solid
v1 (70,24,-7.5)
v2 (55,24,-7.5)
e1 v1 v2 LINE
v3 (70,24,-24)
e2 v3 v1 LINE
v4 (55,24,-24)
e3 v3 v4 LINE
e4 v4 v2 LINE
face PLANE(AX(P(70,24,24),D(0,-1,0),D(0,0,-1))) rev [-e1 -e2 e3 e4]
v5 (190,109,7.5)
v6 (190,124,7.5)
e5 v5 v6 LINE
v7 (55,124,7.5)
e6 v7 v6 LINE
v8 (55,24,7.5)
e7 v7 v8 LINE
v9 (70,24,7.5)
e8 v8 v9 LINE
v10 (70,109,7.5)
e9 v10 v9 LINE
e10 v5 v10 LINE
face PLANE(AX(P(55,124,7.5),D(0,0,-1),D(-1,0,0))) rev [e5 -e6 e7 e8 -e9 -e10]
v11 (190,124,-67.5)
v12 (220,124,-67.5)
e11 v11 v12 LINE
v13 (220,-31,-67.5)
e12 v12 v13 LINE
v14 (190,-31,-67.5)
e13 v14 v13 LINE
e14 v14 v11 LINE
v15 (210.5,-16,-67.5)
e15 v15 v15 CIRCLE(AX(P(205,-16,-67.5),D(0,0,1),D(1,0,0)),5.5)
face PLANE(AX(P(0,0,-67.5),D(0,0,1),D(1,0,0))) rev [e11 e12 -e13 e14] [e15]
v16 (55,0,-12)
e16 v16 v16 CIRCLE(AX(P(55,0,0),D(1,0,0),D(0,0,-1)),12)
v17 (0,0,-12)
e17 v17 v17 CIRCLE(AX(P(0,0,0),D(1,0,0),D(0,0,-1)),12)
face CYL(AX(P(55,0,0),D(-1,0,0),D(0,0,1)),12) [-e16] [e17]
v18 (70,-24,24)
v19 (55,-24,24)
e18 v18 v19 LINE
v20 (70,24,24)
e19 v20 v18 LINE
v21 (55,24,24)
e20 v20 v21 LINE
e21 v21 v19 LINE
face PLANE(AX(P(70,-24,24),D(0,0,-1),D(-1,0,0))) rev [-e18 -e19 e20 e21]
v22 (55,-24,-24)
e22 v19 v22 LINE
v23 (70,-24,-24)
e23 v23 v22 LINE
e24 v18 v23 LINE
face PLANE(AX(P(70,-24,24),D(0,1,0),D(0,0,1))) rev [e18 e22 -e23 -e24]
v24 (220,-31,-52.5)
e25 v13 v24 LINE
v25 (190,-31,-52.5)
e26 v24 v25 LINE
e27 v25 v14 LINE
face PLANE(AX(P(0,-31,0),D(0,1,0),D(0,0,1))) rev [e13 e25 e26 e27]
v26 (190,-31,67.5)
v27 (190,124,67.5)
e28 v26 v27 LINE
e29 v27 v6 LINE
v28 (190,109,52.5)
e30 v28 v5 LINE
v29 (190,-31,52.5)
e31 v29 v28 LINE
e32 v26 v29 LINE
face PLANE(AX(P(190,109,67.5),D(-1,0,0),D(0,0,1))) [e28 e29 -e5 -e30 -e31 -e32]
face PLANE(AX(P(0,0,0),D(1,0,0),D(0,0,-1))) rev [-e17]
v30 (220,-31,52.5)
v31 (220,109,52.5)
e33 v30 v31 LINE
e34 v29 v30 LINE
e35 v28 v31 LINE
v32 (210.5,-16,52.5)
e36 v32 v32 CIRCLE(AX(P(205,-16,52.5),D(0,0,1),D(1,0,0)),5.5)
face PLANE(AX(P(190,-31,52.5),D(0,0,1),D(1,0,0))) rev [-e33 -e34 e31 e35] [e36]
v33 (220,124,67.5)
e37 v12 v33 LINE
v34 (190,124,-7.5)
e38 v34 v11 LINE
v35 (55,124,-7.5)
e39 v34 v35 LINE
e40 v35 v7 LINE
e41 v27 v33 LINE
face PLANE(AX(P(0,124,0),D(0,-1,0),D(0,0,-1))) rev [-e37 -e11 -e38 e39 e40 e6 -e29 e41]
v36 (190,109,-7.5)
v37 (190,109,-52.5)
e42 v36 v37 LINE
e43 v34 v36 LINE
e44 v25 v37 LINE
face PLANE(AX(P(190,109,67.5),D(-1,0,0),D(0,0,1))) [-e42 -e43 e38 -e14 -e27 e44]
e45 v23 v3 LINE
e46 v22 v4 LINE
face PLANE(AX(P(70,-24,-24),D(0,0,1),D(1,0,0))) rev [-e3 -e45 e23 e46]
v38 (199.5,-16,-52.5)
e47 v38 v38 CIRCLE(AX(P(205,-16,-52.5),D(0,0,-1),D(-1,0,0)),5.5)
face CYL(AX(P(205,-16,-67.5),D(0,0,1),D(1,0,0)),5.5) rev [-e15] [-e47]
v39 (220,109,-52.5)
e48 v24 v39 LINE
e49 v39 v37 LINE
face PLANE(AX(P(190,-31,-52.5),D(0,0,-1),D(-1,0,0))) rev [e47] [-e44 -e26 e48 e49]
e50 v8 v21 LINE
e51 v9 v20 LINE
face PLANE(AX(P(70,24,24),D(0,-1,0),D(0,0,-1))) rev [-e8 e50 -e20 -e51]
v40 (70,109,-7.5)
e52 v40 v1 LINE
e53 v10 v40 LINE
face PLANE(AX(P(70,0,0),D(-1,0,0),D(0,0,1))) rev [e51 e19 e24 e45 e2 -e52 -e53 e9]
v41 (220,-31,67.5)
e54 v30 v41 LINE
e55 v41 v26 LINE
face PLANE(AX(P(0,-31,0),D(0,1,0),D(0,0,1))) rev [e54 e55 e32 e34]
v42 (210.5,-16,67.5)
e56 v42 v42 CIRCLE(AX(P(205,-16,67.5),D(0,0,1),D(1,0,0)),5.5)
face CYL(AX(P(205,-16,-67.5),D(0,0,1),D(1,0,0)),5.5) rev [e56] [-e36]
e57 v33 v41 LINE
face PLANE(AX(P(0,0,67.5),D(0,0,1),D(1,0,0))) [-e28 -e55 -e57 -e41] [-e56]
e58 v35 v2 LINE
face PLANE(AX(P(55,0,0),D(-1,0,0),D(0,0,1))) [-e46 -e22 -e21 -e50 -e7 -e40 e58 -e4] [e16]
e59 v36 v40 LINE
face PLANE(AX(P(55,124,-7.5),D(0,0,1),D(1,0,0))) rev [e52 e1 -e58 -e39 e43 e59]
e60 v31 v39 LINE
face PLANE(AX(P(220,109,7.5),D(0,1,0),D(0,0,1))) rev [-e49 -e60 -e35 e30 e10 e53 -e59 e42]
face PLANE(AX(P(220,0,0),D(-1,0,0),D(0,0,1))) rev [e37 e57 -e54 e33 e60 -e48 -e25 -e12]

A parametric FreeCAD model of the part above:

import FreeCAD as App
import Part
import Sketcher
from FreeCAD import Vector


def add_polygon(sketch, points):
    """Adds a closed chain of lines whose ends are joined by coincident constraints."""
    first, n = sketch.GeometryCount, len(points)
    for a, b in zip(points, points[1:] + points[:1]):
        sketch.addGeometry(Part.LineSegment(App.Vector(*a, 0), App.Vector(*b, 0)), False)
    for i in range(n):
        sketch.addConstraint(Sketcher.Constraint("Coincident", first + i, 2, first + (i + 1) % n, 1))

doc = App.newDocument("Part")
body = doc.addObject("PartDesign::Body", "Body")

sketch1 = body.newObject("Sketcher::SketchObject", "Sketch")
sketch1.AttachmentSupport = (doc.getObject("YZ_Plane"), [""])
sketch1.MapMode = "FlatFace"
sketch1.addGeometry(Part.Circle(Vector(0, 0, 0), Vector(0, 0, 1), 12), False)
sketch1.addConstraint([
    Sketcher.Constraint("Coincident", 0, 3, -1, 1),
    Sketcher.Constraint("Diameter", 0, 24.0),
])
pad1 = body.newObject("PartDesign::Pad", "Pad")
pad1.Profile = sketch1
pad1.Length = 55

sketch2 = body.newObject("Sketcher::SketchObject", "Sketch001")
sketch2.AttachmentSupport = (doc.getObject("YZ_Plane"), [""])
sketch2.MapMode = "FlatFace"
sketch2.AttachmentOffset = App.Placement(Vector(0, 0, 55), App.Rotation())
add_polygon(sketch2, [(24, 24), (-24, 24), (-24, -24), (24, -24)])
sketch2.addConstraint([
    Sketcher.Constraint("Horizontal", 0),
    Sketcher.Constraint("Vertical", 1),
    Sketcher.Constraint("Horizontal", 2),
    Sketcher.Constraint("Vertical", 3),
    Sketcher.Constraint("Symmetric", 0, 2, 2, 2, -1, 1),
    Sketcher.Constraint("Equal", 2, 1),
    Sketcher.Constraint("DistanceX", 0, 2, 0, 1, 48.0),
])
pad2 = body.newObject("PartDesign::Pad", "Pad001")
pad2.Profile = sketch2
pad2.Length = 15

sketch3 = body.newObject("Sketcher::SketchObject", "Sketch002")
sketch3.AttachmentSupport = (doc.getObject("XZ_Plane"), [""])
sketch3.MapMode = "FlatFace"
sketch3.AttachmentOffset = App.Placement(Vector(0, 0, -24), App.Rotation())
add_polygon(sketch3, [(55, -8), (55, 8), (70, 8), (70, -8)])
sketch3.addConstraint([
    Sketcher.Constraint("Vertical", 0),
    Sketcher.Constraint("Horizontal", 1),
    Sketcher.Constraint("Vertical", 2),
    Sketcher.Constraint("Horizontal", 3),
    Sketcher.Constraint("Equal", 3, 0),
    Sketcher.Constraint("DistanceX", 1, 1, 1, 2, 15.0),
    Sketcher.Constraint("DistanceX", -1, 1, 0, 2, 55.0),
    Sketcher.Constraint("DistanceY", -1, 1, 0, 2, 7.5),
])
pad3 = body.newObject("PartDesign::Pad", "Pad002")
pad3.Profile = sketch3
pad3.Length = 100
pad3.Reversed = True

sketch4 = body.newObject("Sketcher::SketchObject", "Sketch003")
sketch4.AttachmentSupport = (doc.getObject("YZ_Plane"), [""])
sketch4.MapMode = "FlatFace"
sketch4.AttachmentOffset = App.Placement(Vector(0, 0, 70), App.Rotation())
add_polygon(sketch4, [(124, 8), (109, 8), (109, -8), (124, -8)])
sketch4.addConstraint([
    Sketcher.Constraint("Horizontal", 0),
    Sketcher.Constraint("Vertical", 1),
    Sketcher.Constraint("Horizontal", 2),
    Sketcher.Constraint("Vertical", 3),
    Sketcher.Constraint("Equal", 2, 1),
    Sketcher.Constraint("DistanceX", 0, 2, 0, 1, 15.0),
    Sketcher.Constraint("DistanceX", -1, 1, 0, 2, 109.0),
    Sketcher.Constraint("DistanceY", -1, 1, 0, 2, 7.5),
])
pad4 = body.newObject("PartDesign::Pad", "Pad003")
pad4.Profile = sketch4
pad4.Length = 150

sketch5 = body.newObject("Sketcher::SketchObject", "Sketch004")
sketch5.AttachmentSupport = (doc.getObject("XY_Plane"), [""])
sketch5.MapMode = "FlatFace"
sketch5.AttachmentOffset = App.Placement(Vector(0, 0, -7.5), App.Rotation())
add_polygon(sketch5, [(220, 124), (220, 109), (190, 109), (190, 124)])
sketch5.addConstraint([
    Sketcher.Constraint("Vertical", 0),
    Sketcher.Constraint("Horizontal", 1),
    Sketcher.Constraint("Vertical", 2),
    Sketcher.Constraint("Horizontal", 3),
    Sketcher.Constraint("DistanceX", 1, 2, 1, 1, 30.0),
    Sketcher.Constraint("DistanceY", 0, 2, 0, 1, 15.0),
    Sketcher.Constraint("DistanceX", -1, 1, 0, 2, 220.0),
    Sketcher.Constraint("DistanceY", -1, 1, 0, 2, 109.0),
])
pad5 = body.newObject("PartDesign::Pad", "Pad004")
pad5.Profile = sketch5
pad5.Type = "TwoLengths"
pad5.Length = 60
pad5.Length2 = 75
pad5.Reversed = True

sketch6 = body.newObject("Sketcher::SketchObject", "Sketch005")
sketch6.AttachmentSupport = (doc.getObject("XZ_Plane"), [""])
sketch6.MapMode = "FlatFace"
sketch6.AttachmentOffset = App.Placement(Vector(0, 0, -109), App.Rotation())
add_polygon(sketch6, [(190, -52), (190, -68), (220, -68), (220, -52)])
add_polygon(sketch6, [(190, 68), (190, 52), (220, 52), (220, 68)])
sketch6.addConstraint([
    Sketcher.Constraint("Vertical", 0),
    Sketcher.Constraint("Horizontal", 1),
    Sketcher.Constraint("Vertical", 2),
    Sketcher.Constraint("Horizontal", 3),
    Sketcher.Constraint("Vertical", 4),
    Sketcher.Constraint("Horizontal", 5),
    Sketcher.Constraint("Vertical", 6),
    Sketcher.Constraint("Horizontal", 7),
    Sketcher.Constraint("Symmetric", 3, 2, 4, 2, -1),
    Sketcher.Constraint("Symmetric", 1, 2, 6, 2, -1),
    Sketcher.Constraint("DistanceX", 1, 1, 1, 2, 30.0),
    Sketcher.Constraint("DistanceY", 0, 2, 0, 1, 15.0),
    Sketcher.Constraint("DistanceX", -1, 1, 0, 2, 190.0),
    Sketcher.Constraint("DistanceY", 3, 2, 4, 2, 105.0),
])
pad6 = body.newObject("PartDesign::Pad", "Pad005")
pad6.Profile = sketch6
pad6.Length = 140

sketch7 = body.newObject("Sketcher::SketchObject", "Sketch006")
sketch7.AttachmentSupport = (doc.getObject("XY_Plane"), [""])
sketch7.MapMode = "FlatFace"
sketch7.AttachmentOffset = App.Placement(Vector(0, 0, 67.5), App.Rotation())
sketch7.addGeometry(Part.Circle(Vector(205, -16, 0), Vector(0, 0, 1), 6), False)
sketch7.addConstraint([
    Sketcher.Constraint("Diameter", 0, 11.0),
    Sketcher.Constraint("DistanceX", -1, 1, 0, 3, 205.0),
    Sketcher.Constraint("DistanceY", 0, 3, -1, 1, 16.0),
])
pocket1 = body.newObject("PartDesign::Pocket", "Pocket")
pocket1.Profile = sketch7
pocket1.Type = "ThroughAll"

doc.recompute()
